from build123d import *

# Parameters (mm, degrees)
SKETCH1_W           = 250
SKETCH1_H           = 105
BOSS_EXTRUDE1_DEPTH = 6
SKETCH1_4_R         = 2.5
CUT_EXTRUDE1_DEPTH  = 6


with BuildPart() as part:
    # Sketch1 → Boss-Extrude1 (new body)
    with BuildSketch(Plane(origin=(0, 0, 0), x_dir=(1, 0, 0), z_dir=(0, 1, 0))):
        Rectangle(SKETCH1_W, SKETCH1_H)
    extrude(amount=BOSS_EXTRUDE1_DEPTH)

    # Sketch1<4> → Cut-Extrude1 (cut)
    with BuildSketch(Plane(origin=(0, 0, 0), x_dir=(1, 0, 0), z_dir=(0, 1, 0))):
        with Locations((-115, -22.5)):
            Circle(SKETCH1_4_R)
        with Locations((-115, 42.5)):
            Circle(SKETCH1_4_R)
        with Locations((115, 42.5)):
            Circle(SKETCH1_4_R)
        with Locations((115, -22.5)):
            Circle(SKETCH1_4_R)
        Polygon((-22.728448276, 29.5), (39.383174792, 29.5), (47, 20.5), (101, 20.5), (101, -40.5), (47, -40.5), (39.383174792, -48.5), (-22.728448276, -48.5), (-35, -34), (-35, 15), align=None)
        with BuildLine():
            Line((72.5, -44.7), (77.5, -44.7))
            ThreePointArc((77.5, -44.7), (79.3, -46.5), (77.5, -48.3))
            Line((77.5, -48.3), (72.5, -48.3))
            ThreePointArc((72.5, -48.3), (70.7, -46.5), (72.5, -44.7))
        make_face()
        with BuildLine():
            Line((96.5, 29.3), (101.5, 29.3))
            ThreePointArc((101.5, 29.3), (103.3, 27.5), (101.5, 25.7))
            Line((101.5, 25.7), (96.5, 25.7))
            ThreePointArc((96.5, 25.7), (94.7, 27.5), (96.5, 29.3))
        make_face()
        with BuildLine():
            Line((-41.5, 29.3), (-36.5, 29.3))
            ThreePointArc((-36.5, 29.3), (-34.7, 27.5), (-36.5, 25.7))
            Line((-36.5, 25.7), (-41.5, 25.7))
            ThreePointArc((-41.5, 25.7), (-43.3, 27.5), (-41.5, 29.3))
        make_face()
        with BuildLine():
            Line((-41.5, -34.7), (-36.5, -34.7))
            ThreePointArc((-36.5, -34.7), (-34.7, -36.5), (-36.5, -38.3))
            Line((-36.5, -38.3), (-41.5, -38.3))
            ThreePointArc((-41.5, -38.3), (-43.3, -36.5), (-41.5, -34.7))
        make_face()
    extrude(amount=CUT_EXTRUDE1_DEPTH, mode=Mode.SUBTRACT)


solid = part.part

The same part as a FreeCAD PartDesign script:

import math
import FreeCAD as App
import Part
import Sketcher
from FreeCAD import Vector
Q = App.Units.Quantity

doc = App.newDocument("Part")
body = doc.addObject("PartDesign::Body", "Body")

sketch1 = body.newObject("Sketcher::SketchObject", "Sketch")
sketch1.AttachmentSupport = (doc.getObject("XZ_Plane"), [""])
sketch1.MapMode = "FlatFace"
sketch1.addGeometry(Part.LineSegment(Vector(-125, -52.5, 0), Vector(-125, 52.5, 0)), False)
sketch1.addGeometry(Part.LineSegment(Vector(-125, 52.5, 0), Vector(125, 52.5, 0)), False)
sketch1.addGeometry(Part.LineSegment(Vector(125, 52.5, 0), Vector(125, -52.5, 0)), False)
sketch1.addGeometry(Part.LineSegment(Vector(125, -52.5, 0), Vector(-125, -52.5, 0)), False)
sketch1.addConstraint(Sketcher.Constraint("Coincident", 0, 2, 1, 1))
sketch1.addConstraint(Sketcher.Constraint("Coincident", 1, 2, 2, 1))
sketch1.addConstraint(Sketcher.Constraint("Coincident", 2, 2, 3, 1))
sketch1.addConstraint(Sketcher.Constraint("Coincident", 3, 2, 0, 1))
sketch1.addConstraint(Sketcher.Constraint("Vertical", 0))
sketch1.addConstraint(Sketcher.Constraint("Horizontal", 1))
sketch1.addConstraint(Sketcher.Constraint("Vertical", 2))
sketch1.addConstraint(Sketcher.Constraint("Horizontal", 3))
sketch1.addConstraint(Sketcher.Constraint("Symmetric", 0, 2, 2, 2, -1, 1))
sketch1.addConstraint(Sketcher.Constraint("DistanceX", 1, 1, 1, 2, Q("250 mm")))
sketch1.addConstraint(Sketcher.Constraint("DistanceY", 0, 1, 0, 2, Q("105 mm")))
pad1 = body.newObject("PartDesign::Pad", "Pad")
pad1.Profile = sketch1
pad1.Length = 6
pad1.Reversed = True

sketch2 = body.newObject("Sketcher::SketchObject", "Sketch001")
sketch2.AttachmentSupport = (doc.getObject("XZ_Plane"), [""])
sketch2.MapMode = "FlatFace"
sketch2.addGeometry(Part.Circle(Vector(-115, 22.5, 0), Vector(0, 0, 1), 2.5), False)
sketch2.addGeometry(Part.Circle(Vector(-115, -42.5, 0), Vector(0, 0, 1), 2.5), False)
sketch2.addGeometry(Part.Circle(Vector(115, -42.5, 0), Vector(0, 0, 1), 2.5), False)
sketch2.addGeometry(Part.Circle(Vector(115, 22.5, 0), Vector(0, 0, 1), 2.5), False)
sketch2.addGeometry(Part.LineSegment(Vector(39.383175, -29.5, 0), Vector(-22.728448, -29.5, 0)), False)
sketch2.addGeometry(Part.LineSegment(Vector(-22.728448, -29.5, 0), Vector(-35, -15, 0)), False)
sketch2.addGeometry(Part.LineSegment(Vector(-35, -15, 0), Vector(-35, 34, 0)), False)
sketch2.addGeometry(Part.LineSegment(Vector(-35, 34, 0), Vector(-22.728448, 48.5, 0)), False)
sketch2.addGeometry(Part.LineSegment(Vector(-22.728448, 48.5, 0), Vector(39.383175, 48.5, 0)), False)
sketch2.addGeometry(Part.LineSegment(Vector(39.383175, 48.5, 0), Vector(47, 40.5, 0)), False)
sketch2.addGeometry(Part.LineSegment(Vector(47, 40.5, 0), Vector(101, 40.5, 0)), False)
sketch2.addGeometry(Part.LineSegment(Vector(101, 40.5, 0), Vector(101, -20.5, 0)), False)
sketch2.addGeometry(Part.LineSegment(Vector(101, -20.5, 0), Vector(47, -20.5, 0)), False)
sketch2.addGeometry(Part.LineSegment(Vector(47, -20.5, 0), Vector(39.383175, -29.5, 0)), False)
sketch2.addGeometry(Part.LineSegment(Vector(77.5, 44.7, 0), Vector(72.5, 44.7, 0)), False)
sketch2.addGeometry(Part.ArcOfCircle(Part.Circle(Vector(72.5, 46.5, 0), Vector(0, 0, 1), 1.8), math.radians(90), math.radians(270)), False)
sketch2.addGeometry(Part.LineSegment(Vector(72.5, 48.3, 0), Vector(77.5, 48.3, 0)), False)
sketch2.addGeometry(Part.ArcOfCircle(Part.Circle(Vector(77.5, 46.5, 0), Vector(0, 0, 1), 1.8), math.radians(-90), math.radians(90)), False)
sketch2.addGeometry(Part.LineSegment(Vector(101.5, -29.3, 0), Vector(96.5, -29.3, 0)), False)
sketch2.addGeometry(Part.ArcOfCircle(Part.Circle(Vector(96.5, -27.5, 0), Vector(0, 0, 1), 1.8), math.radians(90), math.radians(270)), False)
sketch2.addGeometry(Part.LineSegment(Vector(96.5, -25.7, 0), Vector(101.5, -25.7, 0)), False)
sketch2.addGeometry(Part.ArcOfCircle(Part.Circle(Vector(101.5, -27.5, 0), Vector(0, 0, 1), 1.8), math.radians(-90), math.radians(90)), False)
sketch2.addGeometry(Part.LineSegment(Vector(-36.5, -29.3, 0), Vector(-41.5, -29.3, 0)), False)
sketch2.addGeometry(Part.ArcOfCircle(Part.Circle(Vector(-41.5, -27.5, 0), Vector(0, 0, 1), 1.8), math.radians(90), math.radians(270)), False)
sketch2.addGeometry(Part.LineSegment(Vector(-41.5, -25.7, 0), Vector(-36.5, -25.7, 0)), False)
sketch2.addGeometry(Part.ArcOfCircle(Part.Circle(Vector(-36.5, -27.5, 0), Vector(0, 0, 1), 1.8), math.radians(-90), math.radians(90)), False)
sketch2.addGeometry(Part.LineSegment(Vector(-36.5, 34.7, 0), Vector(-41.5, 34.7, 0)), False)
sketch2.addGeometry(Part.ArcOfCircle(Part.Circle(Vector(-41.5, 36.5, 0), Vector(0, 0, 1), 1.8), math.radians(90), math.radians(270)), False)
sketch2.addGeometry(Part.LineSegment(Vector(-41.5, 38.3, 0), Vector(-36.5, 38.3, 0)), False)
sketch2.addGeometry(Part.ArcOfCircle(Part.Circle(Vector(-36.5, 36.5, 0), Vector(0, 0, 1), 1.8), math.radians(-90), math.radians(90)), False)
sketch2.addConstraint(Sketcher.Constraint("Coincident", 4, 2, 5, 1))
sketch2.addConstraint(Sketcher.Constraint("Coincident", 5, 2, 6, 1))
sketch2.addConstraint(Sketcher.Constraint("Coincident", 6, 2, 7, 1))
sketch2.addConstraint(Sketcher.Constraint("Coincident", 7, 2, 8, 1))
sketch2.addConstraint(Sketcher.Constraint("Coincident", 8, 2, 9, 1))
sketch2.addConstraint(Sketcher.Constraint("Coincident", 9, 2, 10, 1))
sketch2.addConstraint(Sketcher.Constraint("Coincident", 10, 2, 11, 1))
sketch2.addConstraint(Sketcher.Constraint("Coincident", 11, 2, 12, 1))
sketch2.addConstraint(Sketcher.Constraint("Coincident", 12, 2, 13, 1))
sketch2.addConstraint(Sketcher.Constraint("Coincident", 13, 2, 4, 1))
sketch2.addConstraint(Sketcher.Constraint("Tangent", 14, 2, 15, 2))
sketch2.addConstraint(Sketcher.Constraint("Tangent", 15, 1, 16, 1))
sketch2.addConstraint(Sketcher.Constraint("Tangent", 16, 2, 17, 2))
sketch2.addConstraint(Sketcher.Constraint("Tangent", 17, 1, 14, 1))
sketch2.addConstraint(Sketcher.Constraint("Tangent", 18, 2, 19, 2))
sketch2.addConstraint(Sketcher.Constraint("Tangent", 19, 1, 20, 1))
sketch2.addConstraint(Sketcher.Constraint("Tangent", 20, 2, 21, 2))
sketch2.addConstraint(Sketcher.Constraint("Tangent", 21, 1, 18, 1))
sketch2.addConstraint(Sketcher.Constraint("Tangent", 22, 2, 23, 2))
sketch2.addConstraint(Sketcher.Constraint("Tangent", 23, 1, 24, 1))
sketch2.addConstraint(Sketcher.Constraint("Tangent", 24, 2, 25, 2))
sketch2.addConstraint(Sketcher.Constraint("Tangent", 25, 1, 22, 1))
sketch2.addConstraint(Sketcher.Constraint("Tangent", 26, 2, 27, 2))
sketch2.addConstraint(Sketcher.Constraint("Tangent", 27, 1, 28, 1))
sketch2.addConstraint(Sketcher.Constraint("Tangent", 28, 2, 29, 2))
sketch2.addConstraint(Sketcher.Constraint("Tangent", 29, 1, 26, 1))
sketch2.addConstraint(Sketcher.Constraint("Horizontal", 4))
sketch2.addConstraint(Sketcher.Constraint("Vertical", 6))
sketch2.addConstraint(Sketcher.Constraint("Horizontal", 8))
sketch2.addConstraint(Sketcher.Constraint("Horizontal", 10))
sketch2.addConstraint(Sketcher.Constraint("Vertical", 11))
sketch2.addConstraint(Sketcher.Constraint("Horizontal", 12))
sketch2.addConstraint(Sketcher.Constraint("Horizontal", 14))
sketch2.addConstraint(Sketcher.Constraint("Horizontal", 16))
sketch2.addConstraint(Sketcher.Constraint("Horizontal", 18))
sketch2.addConstraint(Sketcher.Constraint("Horizontal", 20))
sketch2.addConstraint(Sketcher.Constraint("Horizontal", 22))
sketch2.addConstraint(Sketcher.Constraint("Horizontal", 24))
sketch2.addConstraint(Sketcher.Constraint("Horizontal", 26))
sketch2.addConstraint(Sketcher.Constraint("Horizontal", 28))
sketch2.addConstraint(Sketcher.Constraint("Equal", 0, 1))
sketch2.addConstraint(Sketcher.Constraint("Equal", 1, 2))
sketch2.addConstraint(Sketcher.Constraint("Equal", 2, 3))
sketch2.addConstraint(Sketcher.Constraint("Equal", 17, 19))
sketch2.addConstraint(Sketcher.Constraint("Equal", 21, 23))
sketch2.addConstraint(Sketcher.Constraint("Equal", 25, 27))
sketch2.addConstraint(Sketcher.Constraint("Symmetric", 1, 3, 2, 3, -2))
sketch2.addConstraint(Sketcher.Constraint("Symmetric", 0, 3, 3, 3, -2))
sketch2.addConstraint(Sketcher.Constraint("Parallel", 7, 13))
sketch2.addConstraint(Sketcher.Constraint("Horizontal", 21, 3, 23, 3))
sketch2.addConstraint(Sketcher.Constraint("Vertical", 0, 3, 1, 3))
sketch2.addConstraint(Sketcher.Constraint("Vertical", 23, 3, 27, 3))
sketch2.addConstraint(Sketcher.Constraint("Vertical", 25, 3, 29, 3))
sketch2.addConstraint(Sketcher.Constraint("Vertical", 4, 2, 7, 2))
sketch2.addConstraint(Sketcher.Constraint("Vertical", 9, 2, 12, 2))
sketch2.addConstraint(Sketcher.Constraint("Vertical", 8, 2, 13, 2))
sketch2.addConstraint(Sketcher.Constraint("Equal", 16, 18))
sketch2.addConstraint(Sketcher.Constraint("Equal", 20, 22))
sketch2.addConstraint(Sketcher.Constraint("Equal", 5, 7))
sketch2.addConstraint(Sketcher.Constraint("Diameter", 0, Q("5 mm")))
sketch2.addConstraint(Sketcher.Constraint("Radius", 15, Q("1.8 mm")))
sketch2.addConstraint(Sketcher.Constraint("DistanceX", 10, 1, 10, 2, Q("54 mm")))
sketch2.addConstraint(Sketcher.Constraint("DistanceX", 14, 2, 14, 1, Q("5 mm")))
sketch2.addConstraint(Sketcher.Constraint("DistanceY", 6, 1, 6, 2, Q("49 mm")))
sketch2.addConstraint(Sketcher.Constraint("DistanceY", 11, 2, 11, 1, Q("61 mm")))
sketch2.addConstraint(Sketcher.Constraint("DistanceX", 0, 3, -1, 1, Q("115 mm")))
sketch2.addConstraint(Sketcher.Constraint("DistanceX", 5, 2, -1, 1, Q("35 mm")))
sketch2.addConstraint(Sketcher.Constraint("DistanceY", 5, 2, -1, 1, Q("15 mm")))
sketch2.addConstraint(Sketcher.Constraint("DistanceX", -1, 1, 9, 2, Q("47 mm")))
sketch2.addConstraint(Sketcher.Constraint("DistanceY", 1, 3, 0, 3, Q("65 mm")))
sketch2.addConstraint(Sketcher.Constraint("DistanceY", 3, 3, 15, 3, Q("24 mm")))
sketch2.addConstraint(Sketcher.Constraint("DistanceY", 2, 3, 19, 3, Q("15 mm")))
sketch2.addConstraint(Sketcher.Constraint("DistanceX", 17, 3, 19, 3, Q("19 mm")))
sketch2.addConstraint(Sketcher.Constraint("DistanceX", 23, 3, 15, 3, Q("114 mm")))
sketch2.addConstraint(Sketcher.Constraint("DistanceY", 23, 3, 27, 3, Q("64 mm")))
sketch2.addConstraint(Sketcher.Constraint("DistanceY", 4, 2, 25, 3, Q("2 mm")))
sketch2.addConstraint(Sketcher.Constraint("DistanceY", 29, 3, 7, 2, Q("12 mm")))
sketch2.addConstraint(Sketcher.Constraint("DistanceY", 9, 2, 8, 2, Q("8 mm")))
sketch2.addConstraint(Sketcher.Constraint("DistanceX", -1, 1, 15, 3, Q("72.5 mm")))
sketch2.addConstraint(Sketcher.Constraint("DistanceX", 4, 2, 4, 1, Q("62.111623 mm")))
pocket1 = body.newObject("PartDesign::Pocket", "Pocket")
pocket1.Profile = sketch2
pocket1.Length = 6

doc.recompute()
